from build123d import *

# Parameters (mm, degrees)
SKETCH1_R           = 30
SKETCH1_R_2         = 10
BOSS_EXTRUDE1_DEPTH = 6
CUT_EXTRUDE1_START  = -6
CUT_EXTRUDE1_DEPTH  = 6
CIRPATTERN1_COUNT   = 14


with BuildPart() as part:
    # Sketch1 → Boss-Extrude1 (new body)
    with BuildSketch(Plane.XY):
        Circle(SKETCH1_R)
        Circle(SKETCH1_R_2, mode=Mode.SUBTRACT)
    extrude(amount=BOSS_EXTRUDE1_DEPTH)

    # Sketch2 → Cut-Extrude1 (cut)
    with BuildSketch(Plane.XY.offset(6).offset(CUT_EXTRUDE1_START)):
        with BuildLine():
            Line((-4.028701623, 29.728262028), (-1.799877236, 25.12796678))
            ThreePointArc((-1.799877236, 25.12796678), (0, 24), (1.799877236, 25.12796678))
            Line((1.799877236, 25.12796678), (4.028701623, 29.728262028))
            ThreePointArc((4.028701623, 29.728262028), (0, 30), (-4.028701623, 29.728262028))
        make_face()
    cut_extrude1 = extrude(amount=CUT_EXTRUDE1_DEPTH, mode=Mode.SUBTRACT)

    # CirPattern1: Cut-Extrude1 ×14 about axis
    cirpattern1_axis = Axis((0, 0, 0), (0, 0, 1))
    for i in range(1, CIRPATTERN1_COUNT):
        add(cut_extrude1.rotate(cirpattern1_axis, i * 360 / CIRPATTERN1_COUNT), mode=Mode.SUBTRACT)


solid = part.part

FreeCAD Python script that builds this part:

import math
import FreeCAD as App
import Part
import Sketcher
from FreeCAD import Vector
Q = App.Units.Quantity

doc = App.newDocument("Part")
body = doc.addObject("PartDesign::Body", "Body")

# Sketch on XY plane
sketch1 = doc.addObject("Sketcher::SketchObject", "Sketch")
body.addObject(sketch1)
sketch1.AttachmentSupport = (doc.XY_Plane, [""])
sketch1.MapMode = "FlatFace"
sketch1.addGeometry([
    Part.Circle(Vector(0, 0, 0), Vector(0, 0, 1), 30),
    Part.Circle(Vector(0, 0, 0), Vector(0, 0, 1), 10),
], False)
sketch1.addConstraint([
    Sketcher.Constraint("Coincident", 0, 3, -1, 1),
    Sketcher.Constraint("Coincident", 1, 3, -1, 1),
    Sketcher.Constraint("Diameter", 0, Q("60 mm")),
    Sketcher.Constraint("Diameter", 1, Q("20 mm")),
])
pad1 = doc.addObject("PartDesign::Pad", "Pad")
body.addObject(pad1)
pad1.Profile = sketch1
pad1.Length = 6

# Sketch on XY plane
sketch2 = doc.addObject("Sketcher::SketchObject", "Sketch001")
body.addObject(sketch2)
sketch2.AttachmentSupport = (doc.XY_Plane, [""])
sketch2.MapMode = "FlatFace"
sketch2.addGeometry([
    Part.LineSegment(Vector(-4, 29.7, 0), Vector(-1.8, 25.1, 0)),
    Part.ArcOfCircle(Part.Circle(Vector(0, 26, 0), Vector(0, 0, 1), 2), math.radians(-154), math.radians(-26)),
    Part.LineSegment(Vector(1.8, 25.1, 0), Vector(4, 29.7, 0)),
    Part.ArcOfCircle(Part.Circle(Vector(0, 0, 0), Vector(0, 0, 1), 30), math.radians(82.28), math.radians(97.72)),
], False)
sketch2.addConstraint([
    Sketcher.Constraint("Tangent", 0, 2, 1, 1),
    Sketcher.Constraint("Tangent", 1, 2, 2, 1),
    Sketcher.Constraint("Coincident", 2, 2, 3, 1),
    Sketcher.Constraint("Coincident", 3, 2, 0, 1),
    Sketcher.Constraint("Coincident", 3, 3, -1, 1),
    Sketcher.Constraint("Symmetric", 0, 2, 1, 2, -2),
    Sketcher.Constraint("Radius", 1, Q("2 mm")),
    Sketcher.Constraint("Radius", 3, Q("30 mm")),
    Sketcher.Constraint("DistanceY", -1, 1, 1, 3, Q("26 mm")),
    Sketcher.Constraint("Angle", 0, Q("-64.15 deg")),
])
pocket1 = doc.addObject("PartDesign::Pocket", "Pocket")
body.addObject(pocket1)
pocket1.Profile = sketch2
pocket1.Length = 6
pocket1.Reversed = True
doc.recompute()

polarpattern = doc.addObject("PartDesign::PolarPattern", "PolarPattern")
body.addObject(polarpattern)
polarpattern.Originals = [pocket1]
polarpattern.Axis = (doc.Z_Axis, [""])
polarpattern.Angle = 360
polarpattern.Occurrences = 14
body.Tip = polarpattern

doc.recompute()
